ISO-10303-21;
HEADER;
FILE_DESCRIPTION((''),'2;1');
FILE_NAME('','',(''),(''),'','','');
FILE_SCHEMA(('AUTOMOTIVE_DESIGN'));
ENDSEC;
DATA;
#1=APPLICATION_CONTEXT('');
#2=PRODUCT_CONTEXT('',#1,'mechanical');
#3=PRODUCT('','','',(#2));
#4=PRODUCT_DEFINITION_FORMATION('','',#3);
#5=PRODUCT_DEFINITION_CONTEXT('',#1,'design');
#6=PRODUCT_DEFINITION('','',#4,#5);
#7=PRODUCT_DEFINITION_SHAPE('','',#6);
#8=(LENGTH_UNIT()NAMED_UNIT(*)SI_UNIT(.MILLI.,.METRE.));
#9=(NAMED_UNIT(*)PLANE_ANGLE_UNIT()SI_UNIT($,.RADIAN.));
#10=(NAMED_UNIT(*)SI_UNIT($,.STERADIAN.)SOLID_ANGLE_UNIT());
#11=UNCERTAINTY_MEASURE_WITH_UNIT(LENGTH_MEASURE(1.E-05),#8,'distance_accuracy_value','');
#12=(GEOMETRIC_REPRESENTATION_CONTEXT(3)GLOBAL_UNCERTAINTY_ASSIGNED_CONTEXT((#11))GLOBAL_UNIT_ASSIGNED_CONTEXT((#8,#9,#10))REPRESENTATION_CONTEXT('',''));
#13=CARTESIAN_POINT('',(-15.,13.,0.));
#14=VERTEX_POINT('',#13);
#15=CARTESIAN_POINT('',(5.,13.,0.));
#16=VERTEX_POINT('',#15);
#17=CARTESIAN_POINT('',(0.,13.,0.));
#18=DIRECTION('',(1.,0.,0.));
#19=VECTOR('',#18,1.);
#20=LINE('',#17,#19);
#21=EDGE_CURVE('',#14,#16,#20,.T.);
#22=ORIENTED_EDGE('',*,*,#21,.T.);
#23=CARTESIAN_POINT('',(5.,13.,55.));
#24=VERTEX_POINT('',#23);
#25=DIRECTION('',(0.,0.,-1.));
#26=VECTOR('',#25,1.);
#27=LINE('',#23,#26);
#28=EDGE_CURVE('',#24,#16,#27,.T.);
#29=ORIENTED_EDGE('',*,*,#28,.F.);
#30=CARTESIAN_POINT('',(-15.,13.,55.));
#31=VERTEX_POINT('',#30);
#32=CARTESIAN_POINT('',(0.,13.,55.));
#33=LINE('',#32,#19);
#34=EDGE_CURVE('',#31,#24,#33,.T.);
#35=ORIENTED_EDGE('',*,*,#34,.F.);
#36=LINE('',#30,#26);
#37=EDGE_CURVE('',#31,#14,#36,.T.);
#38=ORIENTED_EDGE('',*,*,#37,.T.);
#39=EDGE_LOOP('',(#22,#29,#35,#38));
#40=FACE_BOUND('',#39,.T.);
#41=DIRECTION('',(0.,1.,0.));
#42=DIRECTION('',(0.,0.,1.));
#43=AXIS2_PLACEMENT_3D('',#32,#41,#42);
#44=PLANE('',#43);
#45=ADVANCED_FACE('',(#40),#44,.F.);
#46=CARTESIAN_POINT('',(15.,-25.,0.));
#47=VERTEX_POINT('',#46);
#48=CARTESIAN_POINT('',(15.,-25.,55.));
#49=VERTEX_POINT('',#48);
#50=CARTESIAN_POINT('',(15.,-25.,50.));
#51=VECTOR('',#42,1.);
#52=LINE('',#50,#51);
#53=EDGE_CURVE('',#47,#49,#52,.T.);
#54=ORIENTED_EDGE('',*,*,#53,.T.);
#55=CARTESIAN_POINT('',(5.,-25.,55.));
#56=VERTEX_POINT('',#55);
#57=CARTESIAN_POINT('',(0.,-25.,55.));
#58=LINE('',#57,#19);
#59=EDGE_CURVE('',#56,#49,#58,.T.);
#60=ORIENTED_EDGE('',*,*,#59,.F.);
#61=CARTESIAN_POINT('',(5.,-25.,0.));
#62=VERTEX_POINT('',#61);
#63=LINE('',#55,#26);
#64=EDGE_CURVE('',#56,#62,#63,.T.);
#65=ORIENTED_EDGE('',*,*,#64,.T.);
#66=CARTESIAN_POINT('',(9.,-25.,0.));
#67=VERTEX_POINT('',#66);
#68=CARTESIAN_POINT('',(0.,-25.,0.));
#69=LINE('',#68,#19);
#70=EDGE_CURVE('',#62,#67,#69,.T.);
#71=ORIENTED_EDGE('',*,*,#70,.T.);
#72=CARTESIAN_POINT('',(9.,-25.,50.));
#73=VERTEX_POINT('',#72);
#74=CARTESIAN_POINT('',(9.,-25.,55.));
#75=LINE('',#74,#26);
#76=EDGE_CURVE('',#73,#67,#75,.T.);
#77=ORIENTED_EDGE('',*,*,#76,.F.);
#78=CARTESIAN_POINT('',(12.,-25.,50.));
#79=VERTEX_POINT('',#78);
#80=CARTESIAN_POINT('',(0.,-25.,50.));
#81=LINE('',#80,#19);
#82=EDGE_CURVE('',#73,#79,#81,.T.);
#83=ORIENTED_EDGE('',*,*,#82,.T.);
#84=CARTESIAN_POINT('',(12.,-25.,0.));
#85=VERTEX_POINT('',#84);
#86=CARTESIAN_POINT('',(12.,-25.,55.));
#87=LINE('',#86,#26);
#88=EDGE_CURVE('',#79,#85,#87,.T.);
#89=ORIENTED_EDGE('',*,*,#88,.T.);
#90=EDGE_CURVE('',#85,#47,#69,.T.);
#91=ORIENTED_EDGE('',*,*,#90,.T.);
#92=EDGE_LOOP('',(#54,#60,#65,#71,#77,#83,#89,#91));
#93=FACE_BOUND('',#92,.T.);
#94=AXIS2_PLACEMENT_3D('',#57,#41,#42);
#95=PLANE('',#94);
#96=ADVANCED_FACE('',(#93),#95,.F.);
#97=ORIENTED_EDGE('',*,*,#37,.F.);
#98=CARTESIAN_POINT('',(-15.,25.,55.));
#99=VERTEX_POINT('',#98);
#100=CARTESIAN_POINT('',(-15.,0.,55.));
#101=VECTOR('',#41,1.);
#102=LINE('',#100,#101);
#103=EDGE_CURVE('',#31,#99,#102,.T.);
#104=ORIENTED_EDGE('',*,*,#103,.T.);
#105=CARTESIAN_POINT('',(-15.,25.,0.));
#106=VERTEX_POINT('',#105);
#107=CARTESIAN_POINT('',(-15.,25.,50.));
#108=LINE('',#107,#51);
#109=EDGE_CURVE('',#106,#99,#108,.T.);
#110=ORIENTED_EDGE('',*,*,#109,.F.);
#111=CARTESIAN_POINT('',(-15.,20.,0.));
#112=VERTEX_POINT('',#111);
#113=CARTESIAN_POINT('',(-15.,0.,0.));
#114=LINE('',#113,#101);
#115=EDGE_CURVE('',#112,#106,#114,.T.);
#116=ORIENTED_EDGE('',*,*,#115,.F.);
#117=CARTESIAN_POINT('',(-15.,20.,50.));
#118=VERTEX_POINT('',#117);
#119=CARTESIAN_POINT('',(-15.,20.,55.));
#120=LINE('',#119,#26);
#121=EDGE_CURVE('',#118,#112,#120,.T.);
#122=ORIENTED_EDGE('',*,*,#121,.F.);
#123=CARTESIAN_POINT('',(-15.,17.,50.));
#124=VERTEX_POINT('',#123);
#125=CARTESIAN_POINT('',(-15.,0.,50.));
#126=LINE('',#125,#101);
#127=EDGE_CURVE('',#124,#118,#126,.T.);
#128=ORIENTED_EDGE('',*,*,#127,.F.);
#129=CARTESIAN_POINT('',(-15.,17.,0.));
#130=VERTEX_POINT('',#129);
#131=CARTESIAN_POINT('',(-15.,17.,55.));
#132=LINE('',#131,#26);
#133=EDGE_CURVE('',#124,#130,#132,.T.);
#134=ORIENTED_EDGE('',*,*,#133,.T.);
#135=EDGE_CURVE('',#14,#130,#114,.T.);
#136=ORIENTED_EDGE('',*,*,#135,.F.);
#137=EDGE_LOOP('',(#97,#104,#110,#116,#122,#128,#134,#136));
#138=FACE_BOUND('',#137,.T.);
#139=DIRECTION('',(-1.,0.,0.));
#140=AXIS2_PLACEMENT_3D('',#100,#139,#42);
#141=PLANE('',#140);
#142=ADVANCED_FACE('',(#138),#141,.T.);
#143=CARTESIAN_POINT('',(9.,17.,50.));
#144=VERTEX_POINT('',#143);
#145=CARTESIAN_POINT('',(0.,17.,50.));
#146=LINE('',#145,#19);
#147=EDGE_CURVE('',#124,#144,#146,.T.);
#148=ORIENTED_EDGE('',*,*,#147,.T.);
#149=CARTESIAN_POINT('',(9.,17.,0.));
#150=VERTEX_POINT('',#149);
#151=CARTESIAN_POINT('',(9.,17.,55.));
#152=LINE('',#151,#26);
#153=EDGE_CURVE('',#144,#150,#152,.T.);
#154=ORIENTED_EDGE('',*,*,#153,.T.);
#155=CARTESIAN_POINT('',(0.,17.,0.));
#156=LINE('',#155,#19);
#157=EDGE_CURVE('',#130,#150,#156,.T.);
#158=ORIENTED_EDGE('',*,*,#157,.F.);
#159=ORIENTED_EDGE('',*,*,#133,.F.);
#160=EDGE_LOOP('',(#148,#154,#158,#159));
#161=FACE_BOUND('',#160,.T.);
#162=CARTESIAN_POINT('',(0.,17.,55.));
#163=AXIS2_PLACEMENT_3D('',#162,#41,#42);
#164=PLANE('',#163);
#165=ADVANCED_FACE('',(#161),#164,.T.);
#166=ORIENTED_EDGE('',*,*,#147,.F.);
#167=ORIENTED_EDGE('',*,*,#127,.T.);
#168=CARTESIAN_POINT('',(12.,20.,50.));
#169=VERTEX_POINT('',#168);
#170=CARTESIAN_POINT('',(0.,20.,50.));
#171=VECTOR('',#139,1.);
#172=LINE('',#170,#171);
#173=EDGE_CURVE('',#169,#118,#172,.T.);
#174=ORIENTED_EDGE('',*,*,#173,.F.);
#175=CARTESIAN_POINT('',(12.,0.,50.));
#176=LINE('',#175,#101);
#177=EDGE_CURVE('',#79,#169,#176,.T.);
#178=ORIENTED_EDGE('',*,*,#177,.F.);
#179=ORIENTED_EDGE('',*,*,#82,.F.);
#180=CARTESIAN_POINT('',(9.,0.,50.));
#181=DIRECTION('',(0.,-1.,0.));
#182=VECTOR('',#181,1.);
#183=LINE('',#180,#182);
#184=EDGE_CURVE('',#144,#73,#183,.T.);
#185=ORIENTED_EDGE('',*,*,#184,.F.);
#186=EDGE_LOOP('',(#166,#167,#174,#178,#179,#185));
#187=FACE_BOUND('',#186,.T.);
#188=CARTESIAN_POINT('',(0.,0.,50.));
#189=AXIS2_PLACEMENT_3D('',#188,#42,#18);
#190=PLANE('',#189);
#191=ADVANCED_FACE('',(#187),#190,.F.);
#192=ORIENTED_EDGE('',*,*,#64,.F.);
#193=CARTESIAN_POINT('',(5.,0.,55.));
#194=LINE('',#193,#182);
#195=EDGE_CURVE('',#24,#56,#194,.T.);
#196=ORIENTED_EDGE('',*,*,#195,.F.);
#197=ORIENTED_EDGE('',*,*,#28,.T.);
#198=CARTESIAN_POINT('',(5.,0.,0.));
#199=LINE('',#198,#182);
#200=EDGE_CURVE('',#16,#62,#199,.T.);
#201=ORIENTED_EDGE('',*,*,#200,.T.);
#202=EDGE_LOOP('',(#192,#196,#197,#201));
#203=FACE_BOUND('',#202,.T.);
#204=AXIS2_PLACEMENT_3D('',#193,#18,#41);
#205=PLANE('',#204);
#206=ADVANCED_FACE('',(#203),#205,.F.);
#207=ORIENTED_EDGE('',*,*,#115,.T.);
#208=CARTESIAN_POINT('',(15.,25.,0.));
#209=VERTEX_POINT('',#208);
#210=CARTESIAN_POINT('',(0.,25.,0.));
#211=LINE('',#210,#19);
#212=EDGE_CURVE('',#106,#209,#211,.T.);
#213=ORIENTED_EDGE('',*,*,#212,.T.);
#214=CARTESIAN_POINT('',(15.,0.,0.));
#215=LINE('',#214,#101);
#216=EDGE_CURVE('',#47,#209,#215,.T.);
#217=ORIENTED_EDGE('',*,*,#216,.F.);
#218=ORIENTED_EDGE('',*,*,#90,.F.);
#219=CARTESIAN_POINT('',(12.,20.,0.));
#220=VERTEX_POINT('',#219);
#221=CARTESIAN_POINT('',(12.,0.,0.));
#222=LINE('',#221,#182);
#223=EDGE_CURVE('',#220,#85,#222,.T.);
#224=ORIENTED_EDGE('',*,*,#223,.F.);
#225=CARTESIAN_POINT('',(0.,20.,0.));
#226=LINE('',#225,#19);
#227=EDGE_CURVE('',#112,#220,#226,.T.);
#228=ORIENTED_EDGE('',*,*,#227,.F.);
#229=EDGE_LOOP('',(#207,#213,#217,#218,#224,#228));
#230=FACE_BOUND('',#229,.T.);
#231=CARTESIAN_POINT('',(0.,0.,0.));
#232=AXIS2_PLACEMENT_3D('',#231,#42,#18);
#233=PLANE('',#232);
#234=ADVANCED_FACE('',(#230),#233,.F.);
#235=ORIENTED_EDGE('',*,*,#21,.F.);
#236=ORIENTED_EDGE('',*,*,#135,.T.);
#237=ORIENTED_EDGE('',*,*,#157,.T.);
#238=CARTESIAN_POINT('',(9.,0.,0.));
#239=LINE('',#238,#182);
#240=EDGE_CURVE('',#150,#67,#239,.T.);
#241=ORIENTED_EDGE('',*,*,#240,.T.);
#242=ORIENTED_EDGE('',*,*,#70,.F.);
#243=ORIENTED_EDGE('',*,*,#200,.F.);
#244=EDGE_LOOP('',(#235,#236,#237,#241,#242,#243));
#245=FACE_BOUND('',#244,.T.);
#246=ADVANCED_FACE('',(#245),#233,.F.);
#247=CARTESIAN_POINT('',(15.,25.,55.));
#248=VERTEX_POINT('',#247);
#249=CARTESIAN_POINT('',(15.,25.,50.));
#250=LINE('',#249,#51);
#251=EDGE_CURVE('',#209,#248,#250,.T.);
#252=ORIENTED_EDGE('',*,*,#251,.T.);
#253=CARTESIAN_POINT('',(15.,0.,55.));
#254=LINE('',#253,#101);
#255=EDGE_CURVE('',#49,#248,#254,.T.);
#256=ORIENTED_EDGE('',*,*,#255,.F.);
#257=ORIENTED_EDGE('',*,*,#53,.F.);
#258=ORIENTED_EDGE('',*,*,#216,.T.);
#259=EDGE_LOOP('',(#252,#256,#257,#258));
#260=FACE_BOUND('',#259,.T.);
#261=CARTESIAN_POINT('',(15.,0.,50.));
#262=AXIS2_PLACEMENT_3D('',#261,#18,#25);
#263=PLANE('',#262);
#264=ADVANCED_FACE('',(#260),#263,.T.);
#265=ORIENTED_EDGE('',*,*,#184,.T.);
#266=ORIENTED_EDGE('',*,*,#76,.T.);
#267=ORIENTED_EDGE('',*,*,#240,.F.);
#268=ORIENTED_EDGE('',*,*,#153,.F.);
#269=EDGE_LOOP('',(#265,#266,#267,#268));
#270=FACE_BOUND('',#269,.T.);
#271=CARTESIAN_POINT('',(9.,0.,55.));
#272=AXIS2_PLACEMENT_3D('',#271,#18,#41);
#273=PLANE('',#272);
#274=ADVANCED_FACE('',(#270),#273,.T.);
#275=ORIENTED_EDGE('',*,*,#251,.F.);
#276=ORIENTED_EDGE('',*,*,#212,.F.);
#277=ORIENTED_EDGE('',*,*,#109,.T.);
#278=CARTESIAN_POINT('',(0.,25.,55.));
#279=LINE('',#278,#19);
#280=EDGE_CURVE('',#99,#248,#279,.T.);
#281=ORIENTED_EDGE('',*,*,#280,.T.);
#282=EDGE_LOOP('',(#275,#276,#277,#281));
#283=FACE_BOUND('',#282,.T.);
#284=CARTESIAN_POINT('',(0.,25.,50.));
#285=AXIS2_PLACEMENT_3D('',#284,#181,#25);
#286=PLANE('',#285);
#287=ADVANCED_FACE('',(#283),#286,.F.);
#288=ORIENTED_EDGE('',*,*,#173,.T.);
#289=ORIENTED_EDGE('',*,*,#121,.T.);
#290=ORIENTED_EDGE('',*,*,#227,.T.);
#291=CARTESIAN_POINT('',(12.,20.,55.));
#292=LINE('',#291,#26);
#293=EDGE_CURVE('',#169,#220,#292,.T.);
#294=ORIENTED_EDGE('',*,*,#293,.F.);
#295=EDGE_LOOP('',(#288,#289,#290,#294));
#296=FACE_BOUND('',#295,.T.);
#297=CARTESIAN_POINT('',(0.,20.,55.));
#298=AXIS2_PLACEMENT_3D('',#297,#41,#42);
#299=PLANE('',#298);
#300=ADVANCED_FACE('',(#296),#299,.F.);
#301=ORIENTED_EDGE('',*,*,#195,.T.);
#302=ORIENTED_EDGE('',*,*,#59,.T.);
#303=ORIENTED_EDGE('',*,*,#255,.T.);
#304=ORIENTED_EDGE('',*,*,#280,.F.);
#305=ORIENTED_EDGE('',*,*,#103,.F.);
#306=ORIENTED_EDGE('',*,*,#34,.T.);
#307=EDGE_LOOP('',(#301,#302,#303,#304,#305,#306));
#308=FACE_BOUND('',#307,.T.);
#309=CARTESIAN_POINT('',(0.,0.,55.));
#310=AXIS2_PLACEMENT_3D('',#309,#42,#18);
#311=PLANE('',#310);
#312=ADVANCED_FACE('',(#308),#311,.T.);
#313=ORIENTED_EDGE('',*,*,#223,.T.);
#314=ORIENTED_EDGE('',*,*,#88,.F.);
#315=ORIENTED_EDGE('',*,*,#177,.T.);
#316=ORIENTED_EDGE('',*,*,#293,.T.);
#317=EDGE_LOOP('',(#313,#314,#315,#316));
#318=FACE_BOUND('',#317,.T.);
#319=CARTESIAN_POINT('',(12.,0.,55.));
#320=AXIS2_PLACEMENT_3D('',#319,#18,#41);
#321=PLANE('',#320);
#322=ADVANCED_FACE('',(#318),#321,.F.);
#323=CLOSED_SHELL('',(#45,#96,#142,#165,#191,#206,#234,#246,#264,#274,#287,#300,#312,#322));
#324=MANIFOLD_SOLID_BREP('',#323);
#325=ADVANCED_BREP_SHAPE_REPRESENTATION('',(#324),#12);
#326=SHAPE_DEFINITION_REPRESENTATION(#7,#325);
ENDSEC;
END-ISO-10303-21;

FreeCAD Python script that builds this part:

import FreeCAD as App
import Part
import Sketcher

doc = App.newDocument("Part")
body = doc.addObject("PartDesign::Body", "Body")

# Sketch on XY plane
sketch1 = doc.addObject("Sketcher::SketchObject", "Sketch")
body.addObject(sketch1)
sketch1.AttachmentSupport = (doc.XY_Plane, [""])
sketch1.MapMode = "FlatFace"
sketch1.addGeometry(Part.LineSegment(App.Vector(9, 17, 0), App.Vector(-15, 17, 0)), False)
sketch1.addGeometry(Part.LineSegment(App.Vector(-15, 17, 0), App.Vector(-15, 13, 0)), False)
sketch1.addGeometry(Part.LineSegment(App.Vector(-15, 13, 0), App.Vector(5, 13, 0)), False)
sketch1.addGeometry(Part.LineSegment(App.Vector(5, 13, 0), App.Vector(5, -25, 0)), False)
sketch1.addGeometry(Part.LineSegment(App.Vector(5, -25, 0), App.Vector(9, -25, 0)), False)
sketch1.addGeometry(Part.LineSegment(App.Vector(9, -25, 0), App.Vector(9, 17, 0)), False)
sketch1.addConstraint(Sketcher.Constraint("Coincident", 0, 2, 1, 1))
sketch1.addConstraint(Sketcher.Constraint("Coincident", 1, 2, 2, 1))
sketch1.addConstraint(Sketcher.Constraint("Coincident", 2, 2, 3, 1))
sketch1.addConstraint(Sketcher.Constraint("Coincident", 3, 2, 4, 1))
sketch1.addConstraint(Sketcher.Constraint("Coincident", 4, 2, 5, 1))
sketch1.addConstraint(Sketcher.Constraint("Coincident", 5, 2, 0, 1))
sketch1.addConstraint(Sketcher.Constraint("Horizontal", 0))
sketch1.addConstraint(Sketcher.Constraint("Vertical", 1))
sketch1.addConstraint(Sketcher.Constraint("Horizontal", 2))
sketch1.addConstraint(Sketcher.Constraint("Vertical", 3))
sketch1.addConstraint(Sketcher.Constraint("Horizontal", 4))
sketch1.addConstraint(Sketcher.Constraint("Vertical", 5))
sketch1.addConstraint(Sketcher.Constraint("Equal", 4, 1))
sketch1.addConstraint(Sketcher.Constraint("DistanceX", 0, 2, 0, 1, 24.0))
sketch1.addConstraint(Sketcher.Constraint("DistanceX", 2, 1, 2, 2, 20.0))
sketch1.addConstraint(Sketcher.Constraint("DistanceY", 3, 2, 3, 1, 38.0))
sketch1.addConstraint(Sketcher.Constraint("DistanceX", 0, 2, -1, 1, 15.0))
sketch1.addConstraint(Sketcher.Constraint("DistanceY", -1, 1, 0, 2, 17.0))
pad1 = doc.addObject("PartDesign::Pad", "Pad")
body.addObject(pad1)
pad1.Profile = sketch1
pad1.Length = 55
body2 = doc.addObject("PartDesign::Body", "Body001")

# Sketch on XY plane
sketch2 = doc.addObject("Sketcher::SketchObject", "Sketch001")
body2.addObject(sketch2)
sketch2.AttachmentSupport = (doc.getObject("XY_Plane001"), [""])
sketch2.MapMode = "FlatFace"
sketch2.addGeometry(Part.LineSegment(App.Vector(-15, 25, 0), App.Vector(-15, 20, 0)), False)
sketch2.addGeometry(Part.LineSegment(App.Vector(-15, 20, 0), App.Vector(12, 20, 0)), False)
sketch2.addGeometry(Part.LineSegment(App.Vector(12, 20, 0), App.Vector(12, -25, 0)), False)
sketch2.addGeometry(Part.LineSegment(App.Vector(12, -25, 0), App.Vector(15, -25, 0)), False)
sketch2.addGeometry(Part.LineSegment(App.Vector(15, -25, 0), App.Vector(15, 25, 0)), False)
sketch2.addGeometry(Part.LineSegment(App.Vector(15, 25, 0), App.Vector(-15, 25, 0)), False)
sketch2.addConstraint(Sketcher.Constraint("Coincident", 0, 2, 1, 1))
sketch2.addConstraint(Sketcher.Constraint("Coincident", 1, 2, 2, 1))
sketch2.addConstraint(Sketcher.Constraint("Coincident", 2, 2, 3, 1))
sketch2.addConstraint(Sketcher.Constraint("Coincident", 3, 2, 4, 1))
sketch2.addConstraint(Sketcher.Constraint("Coincident", 4, 2, 5, 1))
sketch2.addConstraint(Sketcher.Constraint("Coincident", 5, 2, 0, 1))
sketch2.addConstraint(Sketcher.Constraint("Vertical", 0))
sketch2.addConstraint(Sketcher.Constraint("Horizontal", 1))
sketch2.addConstraint(Sketcher.Constraint("Vertical", 2))
sketch2.addConstraint(Sketcher.Constraint("Horizontal", 3))
sketch2.addConstraint(Sketcher.Constraint("Vertical", 4))
sketch2.addConstraint(Sketcher.Constraint("Horizontal", 5))
sketch2.addConstraint(Sketcher.Constraint("Symmetric", 3, 2, 5, 2, -1, 1))
sketch2.addConstraint(Sketcher.Constraint("DistanceX", 1, 1, 1, 2, 27.0))
sketch2.addConstraint(Sketcher.Constraint("DistanceX", 3, 1, 3, 2, 3.0))
sketch2.addConstraint(Sketcher.Constraint("DistanceY", 0, 2, 0, 1, 5.0))
sketch2.addConstraint(Sketcher.Constraint("DistanceY", 2, 2, 2, 1, 45.0))
pad2 = doc.addObject("PartDesign::Pad", "Pad001")
body2.addObject(pad2)
pad2.Profile = sketch2
pad2.Length = 55
body.AllowCompound = True
doc.recompute()

boolean = doc.addObject("PartDesign::Boolean", "Boolean")
body.addObject(boolean)
boolean.Type = "Fuse"
boolean.addObjects([body2])

# Sketch on XY plane
sketch3 = doc.addObject("Sketcher::SketchObject", "Sketch002")
body.addObject(sketch3)
sketch3.AttachmentSupport = (doc.XY_Plane, [""])
sketch3.MapMode = "FlatFace"
sketch3.AttachmentOffset = App.Placement(App.Vector(0, 0, 55), App.Rotation())
sketch3.addGeometry(Part.LineSegment(App.Vector(-15, 25, 0), App.Vector(-15, 13, 0)), False)
sketch3.addGeometry(Part.LineSegment(App.Vector(-15, 13, 0), App.Vector(5, 13, 0)), False)
sketch3.addGeometry(Part.LineSegment(App.Vector(5, 13, 0), App.Vector(5, -25, 0)), False)
sketch3.addGeometry(Part.LineSegment(App.Vector(5, -25, 0), App.Vector(15, -25, 0)), False)
sketch3.addGeometry(Part.LineSegment(App.Vector(15, -25, 0), App.Vector(15, 25, 0)), False)
sketch3.addGeometry(Part.LineSegment(App.Vector(15, 25, 0), App.Vector(-15, 25, 0)), False)
sketch3.addConstraint(Sketcher.Constraint("Coincident", 0, 2, 1, 1))
sketch3.addConstraint(Sketcher.Constraint("Coincident", 1, 2, 2, 1))
sketch3.addConstraint(Sketcher.Constraint("Coincident", 2, 2, 3, 1))
sketch3.addConstraint(Sketcher.Constraint("Coincident", 3, 2, 4, 1))
sketch3.addConstraint(Sketcher.Constraint("Coincident", 4, 2, 5, 1))
sketch3.addConstraint(Sketcher.Constraint("Coincident", 5, 2, 0, 1))
sketch3.addConstraint(Sketcher.Constraint("Vertical", 0))
sketch3.addConstraint(Sketcher.Constraint("Horizontal", 1))
sketch3.addConstraint(Sketcher.Constraint("Vertical", 2))
sketch3.addConstraint(Sketcher.Constraint("Horizontal", 3))
sketch3.addConstraint(Sketcher.Constraint("Vertical", 4))
sketch3.addConstraint(Sketcher.Constraint("Horizontal", 5))
sketch3.addConstraint(Sketcher.Constraint("Symmetric", 3, 2, 5, 2, -1, 1))
sketch3.addConstraint(Sketcher.Constraint("DistanceX", 1, 1, 1, 2, 20.0))
sketch3.addConstraint(Sketcher.Constraint("DistanceX", 3, 1, 3, 2, 10.0))
sketch3.addConstraint(Sketcher.Constraint("DistanceY", 0, 2, 0, 1, 12.0))
sketch3.addConstraint(Sketcher.Constraint("DistanceY", 2, 2, 2, 1, 38.0))
pad3 = doc.addObject("PartDesign::Pad", "Pad002")
body.addObject(pad3)
pad3.Profile = sketch3
pad3.Length = 5
pad3.Reversed = True

doc.recompute()
